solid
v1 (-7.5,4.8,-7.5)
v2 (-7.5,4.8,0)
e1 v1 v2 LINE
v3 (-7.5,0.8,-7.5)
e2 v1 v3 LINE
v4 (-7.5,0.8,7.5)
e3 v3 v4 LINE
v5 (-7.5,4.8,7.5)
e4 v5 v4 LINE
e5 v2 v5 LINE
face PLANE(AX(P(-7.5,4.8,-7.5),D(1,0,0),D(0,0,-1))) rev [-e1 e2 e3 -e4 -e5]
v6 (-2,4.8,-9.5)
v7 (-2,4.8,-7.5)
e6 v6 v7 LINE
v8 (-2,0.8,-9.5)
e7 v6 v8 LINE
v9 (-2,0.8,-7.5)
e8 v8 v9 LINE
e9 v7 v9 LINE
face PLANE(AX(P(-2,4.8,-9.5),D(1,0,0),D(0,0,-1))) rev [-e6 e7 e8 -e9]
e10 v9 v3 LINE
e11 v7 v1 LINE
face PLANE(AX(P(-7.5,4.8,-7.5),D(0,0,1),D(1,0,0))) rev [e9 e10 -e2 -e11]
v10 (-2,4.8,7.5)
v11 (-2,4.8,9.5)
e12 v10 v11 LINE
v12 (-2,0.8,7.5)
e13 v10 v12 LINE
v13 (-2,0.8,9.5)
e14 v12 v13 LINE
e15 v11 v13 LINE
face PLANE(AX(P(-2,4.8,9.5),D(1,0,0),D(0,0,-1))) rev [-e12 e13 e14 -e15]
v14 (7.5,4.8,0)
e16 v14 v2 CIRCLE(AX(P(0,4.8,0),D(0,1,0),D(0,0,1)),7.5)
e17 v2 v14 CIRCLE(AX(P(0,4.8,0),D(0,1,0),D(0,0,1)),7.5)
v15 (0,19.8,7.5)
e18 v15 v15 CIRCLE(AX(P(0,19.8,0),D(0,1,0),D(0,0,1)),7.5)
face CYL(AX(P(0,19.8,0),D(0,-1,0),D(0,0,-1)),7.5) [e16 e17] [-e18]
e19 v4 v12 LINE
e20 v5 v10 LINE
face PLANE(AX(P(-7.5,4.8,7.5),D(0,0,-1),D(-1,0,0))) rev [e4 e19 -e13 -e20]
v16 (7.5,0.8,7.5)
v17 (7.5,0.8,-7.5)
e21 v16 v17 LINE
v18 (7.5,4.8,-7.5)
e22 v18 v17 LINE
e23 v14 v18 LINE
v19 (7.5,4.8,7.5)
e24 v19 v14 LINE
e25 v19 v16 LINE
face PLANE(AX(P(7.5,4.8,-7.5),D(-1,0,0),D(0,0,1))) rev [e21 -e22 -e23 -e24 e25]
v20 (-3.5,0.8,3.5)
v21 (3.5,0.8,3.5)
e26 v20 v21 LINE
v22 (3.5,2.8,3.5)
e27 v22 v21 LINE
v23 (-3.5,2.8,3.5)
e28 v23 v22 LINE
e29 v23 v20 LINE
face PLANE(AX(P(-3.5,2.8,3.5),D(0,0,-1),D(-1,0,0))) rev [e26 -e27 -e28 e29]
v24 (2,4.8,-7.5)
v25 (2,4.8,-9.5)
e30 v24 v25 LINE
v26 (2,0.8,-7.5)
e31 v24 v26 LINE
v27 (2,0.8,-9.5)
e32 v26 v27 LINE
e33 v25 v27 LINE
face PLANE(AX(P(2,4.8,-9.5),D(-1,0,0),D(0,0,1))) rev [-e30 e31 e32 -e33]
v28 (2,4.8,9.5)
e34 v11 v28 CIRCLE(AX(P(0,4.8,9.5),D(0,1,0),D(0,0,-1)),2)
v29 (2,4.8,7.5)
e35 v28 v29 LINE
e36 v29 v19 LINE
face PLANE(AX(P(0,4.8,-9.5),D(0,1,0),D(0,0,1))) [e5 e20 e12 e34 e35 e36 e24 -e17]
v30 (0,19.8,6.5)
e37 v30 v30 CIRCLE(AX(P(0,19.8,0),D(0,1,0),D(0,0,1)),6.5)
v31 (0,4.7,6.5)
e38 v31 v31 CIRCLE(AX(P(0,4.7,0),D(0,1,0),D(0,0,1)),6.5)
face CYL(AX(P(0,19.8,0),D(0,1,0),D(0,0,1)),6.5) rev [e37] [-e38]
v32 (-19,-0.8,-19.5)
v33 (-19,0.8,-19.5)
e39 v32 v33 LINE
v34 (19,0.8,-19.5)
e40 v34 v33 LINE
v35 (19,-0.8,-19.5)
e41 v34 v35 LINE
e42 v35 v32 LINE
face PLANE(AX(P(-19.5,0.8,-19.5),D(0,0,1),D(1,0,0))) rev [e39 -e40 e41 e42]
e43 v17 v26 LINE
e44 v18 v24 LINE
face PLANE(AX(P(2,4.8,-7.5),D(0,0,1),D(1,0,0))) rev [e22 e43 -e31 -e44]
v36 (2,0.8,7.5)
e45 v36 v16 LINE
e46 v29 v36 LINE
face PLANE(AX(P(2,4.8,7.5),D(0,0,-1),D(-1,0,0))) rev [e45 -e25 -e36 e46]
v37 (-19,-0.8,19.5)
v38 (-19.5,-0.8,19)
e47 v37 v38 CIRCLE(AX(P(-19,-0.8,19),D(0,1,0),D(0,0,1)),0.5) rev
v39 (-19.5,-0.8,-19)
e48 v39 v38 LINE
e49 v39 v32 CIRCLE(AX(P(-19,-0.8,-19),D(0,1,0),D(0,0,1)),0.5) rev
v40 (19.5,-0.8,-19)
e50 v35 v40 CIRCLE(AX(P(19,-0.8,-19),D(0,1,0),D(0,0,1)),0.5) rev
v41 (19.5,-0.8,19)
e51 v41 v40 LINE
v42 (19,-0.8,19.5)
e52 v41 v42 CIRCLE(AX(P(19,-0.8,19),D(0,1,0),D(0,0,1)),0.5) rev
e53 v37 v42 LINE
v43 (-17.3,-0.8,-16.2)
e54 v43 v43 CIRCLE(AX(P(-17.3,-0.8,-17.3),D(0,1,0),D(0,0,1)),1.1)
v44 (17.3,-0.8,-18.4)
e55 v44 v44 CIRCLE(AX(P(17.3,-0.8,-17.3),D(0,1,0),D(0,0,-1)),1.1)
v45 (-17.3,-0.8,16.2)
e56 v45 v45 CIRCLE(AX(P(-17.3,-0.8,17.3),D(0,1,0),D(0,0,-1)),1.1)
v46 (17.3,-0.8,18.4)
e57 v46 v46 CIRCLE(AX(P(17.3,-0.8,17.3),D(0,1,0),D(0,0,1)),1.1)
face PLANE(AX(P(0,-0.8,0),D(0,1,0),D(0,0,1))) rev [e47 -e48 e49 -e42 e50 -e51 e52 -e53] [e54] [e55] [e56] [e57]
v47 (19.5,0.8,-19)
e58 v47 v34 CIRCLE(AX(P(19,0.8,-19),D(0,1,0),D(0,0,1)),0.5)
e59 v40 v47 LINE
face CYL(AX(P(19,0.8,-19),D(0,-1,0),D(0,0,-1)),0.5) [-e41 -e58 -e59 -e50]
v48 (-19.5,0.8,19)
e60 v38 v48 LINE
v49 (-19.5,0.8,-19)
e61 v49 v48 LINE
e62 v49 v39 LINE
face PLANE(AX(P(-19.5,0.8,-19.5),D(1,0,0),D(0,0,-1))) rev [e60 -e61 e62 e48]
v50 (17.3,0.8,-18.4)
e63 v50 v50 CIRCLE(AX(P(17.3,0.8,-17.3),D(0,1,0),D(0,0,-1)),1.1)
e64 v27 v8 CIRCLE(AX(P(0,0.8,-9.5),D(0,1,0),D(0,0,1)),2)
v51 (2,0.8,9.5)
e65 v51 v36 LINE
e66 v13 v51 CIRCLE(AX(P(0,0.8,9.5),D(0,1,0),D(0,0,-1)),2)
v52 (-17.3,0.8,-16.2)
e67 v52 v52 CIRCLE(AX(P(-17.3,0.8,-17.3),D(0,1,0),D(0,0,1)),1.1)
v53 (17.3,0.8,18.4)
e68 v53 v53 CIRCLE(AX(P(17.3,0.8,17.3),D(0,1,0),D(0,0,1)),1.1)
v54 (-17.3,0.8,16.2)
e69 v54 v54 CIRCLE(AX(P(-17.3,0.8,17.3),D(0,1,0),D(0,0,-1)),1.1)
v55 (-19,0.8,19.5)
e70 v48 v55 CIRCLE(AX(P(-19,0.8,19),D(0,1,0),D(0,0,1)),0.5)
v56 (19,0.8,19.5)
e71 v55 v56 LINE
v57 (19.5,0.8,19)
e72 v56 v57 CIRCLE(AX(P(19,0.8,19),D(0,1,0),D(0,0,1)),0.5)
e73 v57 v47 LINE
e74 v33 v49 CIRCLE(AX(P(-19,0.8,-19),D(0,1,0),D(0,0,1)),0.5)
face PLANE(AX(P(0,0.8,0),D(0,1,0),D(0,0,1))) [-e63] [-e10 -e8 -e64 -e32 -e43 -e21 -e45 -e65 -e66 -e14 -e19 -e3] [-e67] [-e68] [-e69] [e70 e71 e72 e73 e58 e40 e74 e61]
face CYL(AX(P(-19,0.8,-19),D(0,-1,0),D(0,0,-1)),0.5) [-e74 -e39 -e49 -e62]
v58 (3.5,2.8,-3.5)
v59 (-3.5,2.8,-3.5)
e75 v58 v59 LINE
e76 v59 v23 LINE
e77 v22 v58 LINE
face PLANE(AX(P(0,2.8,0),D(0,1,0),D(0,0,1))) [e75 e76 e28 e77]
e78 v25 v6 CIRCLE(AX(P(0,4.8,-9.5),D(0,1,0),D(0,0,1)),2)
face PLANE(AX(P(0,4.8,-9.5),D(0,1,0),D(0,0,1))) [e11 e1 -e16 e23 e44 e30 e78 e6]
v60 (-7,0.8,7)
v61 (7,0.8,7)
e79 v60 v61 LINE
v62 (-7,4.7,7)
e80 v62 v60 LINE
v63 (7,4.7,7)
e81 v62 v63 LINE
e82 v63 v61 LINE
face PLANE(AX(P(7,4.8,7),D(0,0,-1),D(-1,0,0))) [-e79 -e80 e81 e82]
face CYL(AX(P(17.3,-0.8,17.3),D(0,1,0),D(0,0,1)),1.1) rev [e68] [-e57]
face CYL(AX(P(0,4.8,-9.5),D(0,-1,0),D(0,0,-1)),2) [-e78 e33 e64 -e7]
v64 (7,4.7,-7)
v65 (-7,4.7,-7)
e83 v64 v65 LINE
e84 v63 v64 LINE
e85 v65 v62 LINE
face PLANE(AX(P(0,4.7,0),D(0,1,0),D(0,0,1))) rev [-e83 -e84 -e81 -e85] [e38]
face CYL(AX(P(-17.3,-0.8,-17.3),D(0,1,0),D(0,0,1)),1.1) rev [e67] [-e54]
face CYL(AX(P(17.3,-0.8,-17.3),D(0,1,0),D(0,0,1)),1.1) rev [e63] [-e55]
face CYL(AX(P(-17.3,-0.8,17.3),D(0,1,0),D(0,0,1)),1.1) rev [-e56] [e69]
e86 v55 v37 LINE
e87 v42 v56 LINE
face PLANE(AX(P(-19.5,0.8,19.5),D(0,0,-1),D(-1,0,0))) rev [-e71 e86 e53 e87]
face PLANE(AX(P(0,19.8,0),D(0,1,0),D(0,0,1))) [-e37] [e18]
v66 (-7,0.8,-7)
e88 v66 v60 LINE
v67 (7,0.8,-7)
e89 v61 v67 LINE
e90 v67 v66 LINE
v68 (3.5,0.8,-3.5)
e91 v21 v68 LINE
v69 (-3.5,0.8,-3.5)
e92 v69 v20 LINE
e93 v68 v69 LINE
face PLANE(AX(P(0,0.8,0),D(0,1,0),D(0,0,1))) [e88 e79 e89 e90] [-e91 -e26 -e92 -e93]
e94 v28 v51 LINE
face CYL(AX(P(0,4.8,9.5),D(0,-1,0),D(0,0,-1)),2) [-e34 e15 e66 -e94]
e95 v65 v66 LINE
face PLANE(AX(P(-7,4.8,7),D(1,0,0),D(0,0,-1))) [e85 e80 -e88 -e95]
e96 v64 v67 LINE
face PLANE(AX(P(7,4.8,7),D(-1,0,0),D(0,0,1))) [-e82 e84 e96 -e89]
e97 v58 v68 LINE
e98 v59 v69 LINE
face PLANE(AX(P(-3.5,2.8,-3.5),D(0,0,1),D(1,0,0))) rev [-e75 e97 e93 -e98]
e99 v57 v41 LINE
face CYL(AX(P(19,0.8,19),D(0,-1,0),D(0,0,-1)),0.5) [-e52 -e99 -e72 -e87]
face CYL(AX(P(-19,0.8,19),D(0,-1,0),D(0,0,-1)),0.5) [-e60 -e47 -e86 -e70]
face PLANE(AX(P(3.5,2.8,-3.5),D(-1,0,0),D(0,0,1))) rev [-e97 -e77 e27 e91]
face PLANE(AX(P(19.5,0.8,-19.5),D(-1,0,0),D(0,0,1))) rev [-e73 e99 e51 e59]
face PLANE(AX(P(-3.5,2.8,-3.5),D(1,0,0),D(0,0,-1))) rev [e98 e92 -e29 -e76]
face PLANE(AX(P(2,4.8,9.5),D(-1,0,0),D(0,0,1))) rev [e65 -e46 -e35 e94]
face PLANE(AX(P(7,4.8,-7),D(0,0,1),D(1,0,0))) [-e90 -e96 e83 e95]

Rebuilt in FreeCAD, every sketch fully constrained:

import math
import FreeCAD as App
import Part
import Sketcher
Q = App.Units.Quantity


def edges_at(feature, points):
    """Names of the edges that pass closest to the given points."""
    edges = feature.Shape.Edges
    near = lambda p: min(range(len(edges)), key=lambda i: edges[i].distToShape(Part.Vertex(*p))[0])
    return sorted({f"Edge{near(p) + 1}" for p in points})

doc = App.newDocument("Part")
body = doc.addObject("PartDesign::Body", "Body")

# Sketch on XZ plane
sketch1 = doc.addObject("Sketcher::SketchObject", "Sketch")
body.addObject(sketch1)
sketch1.AttachmentSupport = (doc.XZ_Plane, [""])
sketch1.MapMode = "FlatFace"
sketch1.addGeometry([
    Part.LineSegment(App.Vector(-20, -20, 0), App.Vector(-20, 20, 0)),
    Part.LineSegment(App.Vector(-20, 20, 0), App.Vector(20, 20, 0)),
    Part.LineSegment(App.Vector(20, 20, 0), App.Vector(20, -20, 0)),
    Part.LineSegment(App.Vector(20, -20, 0), App.Vector(-20, -20, 0)),
], False)
sketch1.addConstraint([
    Sketcher.Constraint("Coincident", 0, 2, 1, 1),
    Sketcher.Constraint("Coincident", 1, 2, 2, 1),
    Sketcher.Constraint("Coincident", 2, 2, 3, 1),
    Sketcher.Constraint("Coincident", 3, 2, 0, 1),
    Sketcher.Constraint("Vertical", 0),
    Sketcher.Constraint("Horizontal", 1),
    Sketcher.Constraint("Vertical", 2),
    Sketcher.Constraint("Horizontal", 3),
    Sketcher.Constraint("Symmetric", 0, 2, 2, 2, -1, 1),
    Sketcher.Constraint("Equal", 3, 0),
    Sketcher.Constraint("DistanceX", 1, 1, 1, 2, Q("39 mm")),
])
pad1 = doc.addObject("PartDesign::Pad", "Pad")
body.addObject(pad1)
pad1.Profile = sketch1
pad1.Length = 1.6
pad1.Midplane = True
doc.recompute()

fillet = doc.addObject("PartDesign::Fillet", "Fillet")
body.addObject(fillet)
fillet.Base = (pad1, edges_at(pad1, [
    (19.5, 0, 19.5),
    (-19.5, 0, 19.5),
    (-19.5, 0, -19.5),
    (19.5, 0, -19.5),
]))
fillet.Radius = 0.5

# Sketch on XZ plane
sketch2 = doc.addObject("Sketcher::SketchObject", "Sketch001")
body.addObject(sketch2)
sketch2.AttachmentSupport = (doc.XZ_Plane, [""])
sketch2.MapMode = "FlatFace"
sketch2.AttachmentOffset = App.Placement(App.Vector(0, 0, -0.8), App.Rotation())
sketch2.addGeometry([
    Part.Circle(App.Vector(-17.3, -17.3, 0), App.Vector(0, 0, 1), 1.1),
    Part.Circle(App.Vector(-17.3, 17.3, 0), App.Vector(0, 0, 1), 1.1),
    Part.Circle(App.Vector(17.3, 17.3, 0), App.Vector(0, 0, 1), 1.1),
    Part.Circle(App.Vector(17.3, -17.3, 0), App.Vector(0, 0, 1), 1.1),
], False)
sketch2.addConstraint([
    Sketcher.Constraint("Equal", 0, 1),
    Sketcher.Constraint("Equal", 1, 2),
    Sketcher.Constraint("Equal", 2, 3),
    Sketcher.Constraint("Symmetric", 0, 3, 2, 3, -1, 1),
    Sketcher.Constraint("Symmetric", 1, 3, 3, 3, -1, 1),
    Sketcher.Constraint("Symmetric", 1, 3, 2, 3, -2),
    Sketcher.Constraint("Diameter", 0, Q("2.2 mm")),
    Sketcher.Constraint("DistanceX", 0, 3, -1, 1, Q("17.3 mm")),
    Sketcher.Constraint("DistanceY", 0, 3, -1, 1, Q("17.3 mm")),
])
pocket1 = doc.addObject("PartDesign::Pocket", "Pocket")
body.addObject(pocket1)
pocket1.Profile = sketch2
pocket1.Length = 1.6
pocket1.Reversed = True

# Sketch on XZ plane
sketch3 = doc.addObject("Sketcher::SketchObject", "Sketch002")
body.addObject(sketch3)
sketch3.AttachmentSupport = (doc.XZ_Plane, [""])
sketch3.MapMode = "FlatFace"
sketch3.AttachmentOffset = App.Placement(App.Vector(0, 0, -0.8), App.Rotation())
sketch3.addGeometry([
    Part.LineSegment(App.Vector(-4, -4, 0), App.Vector(-4, 4, 0)),
    Part.LineSegment(App.Vector(-4, 4, 0), App.Vector(4, 4, 0)),
    Part.LineSegment(App.Vector(4, 4, 0), App.Vector(4, -4, 0)),
    Part.LineSegment(App.Vector(4, -4, 0), App.Vector(-4, -4, 0)),
], False)
sketch3.addConstraint([
    Sketcher.Constraint("Coincident", 0, 2, 1, 1),
    Sketcher.Constraint("Coincident", 1, 2, 2, 1),
    Sketcher.Constraint("Coincident", 2, 2, 3, 1),
    Sketcher.Constraint("Coincident", 3, 2, 0, 1),
    Sketcher.Constraint("Vertical", 0),
    Sketcher.Constraint("Horizontal", 1),
    Sketcher.Constraint("Vertical", 2),
    Sketcher.Constraint("Horizontal", 3),
    Sketcher.Constraint("Symmetric", 0, 2, 2, 2, -1, 1),
    Sketcher.Constraint("Equal", 3, 0),
    Sketcher.Constraint("DistanceX", 1, 1, 1, 2, Q("7 mm")),
])
pad2 = doc.addObject("PartDesign::Pad", "Pad001")
body.addObject(pad2)
pad2.Profile = sketch3
pad2.Length = 2
pad2.Reversed = True

# Sketch on XZ plane
sketch4 = doc.addObject("Sketcher::SketchObject", "Sketch003")
body.addObject(sketch4)
sketch4.AttachmentSupport = (doc.XZ_Plane, [""])
sketch4.MapMode = "FlatFace"
sketch4.AttachmentOffset = App.Placement(App.Vector(0, 0, -0.8), App.Rotation())
sketch4.addGeometry([
    Part.LineSegment(App.Vector(-2, -9.5, 0), App.Vector(-2, -7.5, 0)),  # 0
    Part.LineSegment(App.Vector(-2, -7.5, 0), App.Vector(-7.5, -7.5, 0)),  # 1
    Part.LineSegment(App.Vector(-7.5, -7.5, 0), App.Vector(-7.5, 7.5, 0)),  # 2
    Part.LineSegment(App.Vector(-7.5, 7.5, 0), App.Vector(-2, 7.5, 0)),  # 3
    Part.LineSegment(App.Vector(-2, 7.5, 0), App.Vector(-2, 9.5, 0)),  # 4
    Part.ArcOfCircle(Part.Circle(App.Vector(0, 9.5, 0), App.Vector(0, 0, 1), 2), math.radians(0), math.radians(180)),  # 5
    Part.LineSegment(App.Vector(2, 9.5, 0), App.Vector(2, 7.5, 0)),  # 6
    Part.LineSegment(App.Vector(2, 7.5, 0), App.Vector(7.5, 7.5, 0)),  # 7
    Part.LineSegment(App.Vector(7.5, 7.5, 0), App.Vector(7.5, -7.5, 0)),  # 8
    Part.LineSegment(App.Vector(7.5, -7.5, 0), App.Vector(2, -7.5, 0)),  # 9
    Part.LineSegment(App.Vector(2, -7.5, 0), App.Vector(2, -9.5, 0)),  # 10
    Part.ArcOfCircle(Part.Circle(App.Vector(0, -9.5, 0), App.Vector(0, 0, 1), 2), math.radians(180), math.radians(360)),  # 11
    Part.LineSegment(App.Vector(7, 7, 0), App.Vector(-7, 7, 0)),  # 12
    Part.LineSegment(App.Vector(-7, 7, 0), App.Vector(-7, -7, 0)),  # 13
    Part.LineSegment(App.Vector(-7, -7, 0), App.Vector(7, -7, 0)),  # 14
    Part.LineSegment(App.Vector(7, -7, 0), App.Vector(7, 7, 0)),  # 15
], False)
sketch4.addConstraint([
    Sketcher.Constraint("Coincident", 0, 2, 1, 1),
    Sketcher.Constraint("Coincident", 1, 2, 2, 1),
    Sketcher.Constraint("Coincident", 2, 2, 3, 1),
    Sketcher.Constraint("Coincident", 3, 2, 4, 1),
    Sketcher.Constraint("Tangent", 4, 2, 5, 2),
    Sketcher.Constraint("Tangent", 5, 1, 6, 1),
    Sketcher.Constraint("Coincident", 6, 2, 7, 1),
    Sketcher.Constraint("Coincident", 7, 2, 8, 1),
    Sketcher.Constraint("Coincident", 8, 2, 9, 1),
    Sketcher.Constraint("Coincident", 9, 2, 10, 1),
    Sketcher.Constraint("Tangent", 10, 2, 11, 2),
    Sketcher.Constraint("Tangent", 11, 1, 0, 1),
    Sketcher.Constraint("Coincident", 12, 2, 13, 1),
    Sketcher.Constraint("Coincident", 13, 2, 14, 1),
    Sketcher.Constraint("Coincident", 14, 2, 15, 1),
    Sketcher.Constraint("Coincident", 15, 2, 12, 1),
    Sketcher.Constraint("Vertical", 0),
    Sketcher.Constraint("Horizontal", 1),
    Sketcher.Constraint("Vertical", 2),
    Sketcher.Constraint("Horizontal", 3),
    Sketcher.Constraint("Vertical", 4),
    Sketcher.Constraint("Vertical", 6),
    Sketcher.Constraint("Horizontal", 7),
    Sketcher.Constraint("Vertical", 8),
    Sketcher.Constraint("Horizontal", 9),
    Sketcher.Constraint("Vertical", 10),
    Sketcher.Constraint("Horizontal", 12),
    Sketcher.Constraint("Vertical", 13),
    Sketcher.Constraint("Horizontal", 14),
    Sketcher.Constraint("Vertical", 15),
    Sketcher.Constraint("Equal", 5, 11),
    Sketcher.Constraint("Symmetric", 5, 3, 11, 3, -1, 1),
    Sketcher.Constraint("Symmetric", 1, 2, 7, 2, -1, 1),
    Sketcher.Constraint("Symmetric", 12, 2, 14, 2, -1, 1),
    Sketcher.Constraint("Symmetric", 3, 2, 6, 2, -2),
    Sketcher.Constraint("Horizontal", 1, 2, 8, 2),
    Sketcher.Constraint("Equal", 14, 13),
    Sketcher.Constraint("Radius", 5, Q("2 mm")),
    Sketcher.Constraint("DistanceX", 12, 2, 12, 1, Q("14 mm")),
    Sketcher.Constraint("DistanceY", 0, 1, 0, 2, Q("2 mm")),
    Sketcher.Constraint("DistanceY", 2, 1, 2, 2, Q("15 mm")),
    Sketcher.Constraint("DistanceX", 1, 2, 1, 1, Q("5.5 mm")),
])
pad3 = doc.addObject("PartDesign::Pad", "Pad002")
body.addObject(pad3)
pad3.Profile = sketch4
pad3.Length = 4
pad3.Reversed = True

# Sketch on XZ plane
sketch5 = doc.addObject("Sketcher::SketchObject", "Sketch004")
body.addObject(sketch5)
sketch5.AttachmentSupport = (doc.XZ_Plane, [""])
sketch5.MapMode = "FlatFace"
sketch5.AttachmentOffset = App.Placement(App.Vector(0, 0, -4.8), App.Rotation())
sketch5.addGeometry([
    Part.LineSegment(App.Vector(-8, -8, 0), App.Vector(-8, 8, 0)),
    Part.LineSegment(App.Vector(-8, 8, 0), App.Vector(8, 8, 0)),
    Part.LineSegment(App.Vector(8, 8, 0), App.Vector(8, -8, 0)),
    Part.LineSegment(App.Vector(8, -8, 0), App.Vector(-8, -8, 0)),
], False)
sketch5.addConstraint([
    Sketcher.Constraint("Coincident", 0, 2, 1, 1),
    Sketcher.Constraint("Coincident", 1, 2, 2, 1),
    Sketcher.Constraint("Coincident", 2, 2, 3, 1),
    Sketcher.Constraint("Coincident", 3, 2, 0, 1),
    Sketcher.Constraint("Vertical", 0),
    Sketcher.Constraint("Horizontal", 1),
    Sketcher.Constraint("Vertical", 2),
    Sketcher.Constraint("Horizontal", 3),
    Sketcher.Constraint("Symmetric", 0, 2, 2, 2, -1, 1),
    Sketcher.Constraint("Equal", 3, 0),
    Sketcher.Constraint("DistanceX", 1, 1, 1, 2, Q("15 mm")),
])
pad4 = doc.addObject("PartDesign::Pad", "Pad003")
body.addObject(pad4)
pad4.Profile = sketch5
pad4.Length = 0.1

# Sketch on XZ plane
sketch6 = doc.addObject("Sketcher::SketchObject", "Sketch005")
body.addObject(sketch6)
sketch6.AttachmentSupport = (doc.XZ_Plane, [""])
sketch6.MapMode = "FlatFace"
sketch6.AttachmentOffset = App.Placement(App.Vector(0, 0, -4.8), App.Rotation())
sketch6.addGeometry(Part.Circle(App.Vector(0, 0, 0), App.Vector(0, 0, 1), 8), False)
sketch6.addConstraint([
    Sketcher.Constraint("Coincident", 0, 3, -1, 1),
    Sketcher.Constraint("Diameter", 0, Q("15 mm")),
])
pad5 = doc.addObject("PartDesign::Pad", "Pad004")
body.addObject(pad5)
pad5.Profile = sketch6
pad5.Length = 15
pad5.Reversed = True

# Sketch on XZ plane
sketch7 = doc.addObject("Sketcher::SketchObject", "Sketch006")
body.addObject(sketch7)
sketch7.AttachmentSupport = (doc.XZ_Plane, [""])
sketch7.MapMode = "FlatFace"
sketch7.AttachmentOffset = App.Placement(App.Vector(0, 0, -19.8), App.Rotation())
sketch7.addGeometry(Part.Circle(App.Vector(0, 0, 0), App.Vector(0, 0, 1), 6), False)
sketch7.addConstraint([
    Sketcher.Constraint("Coincident", 0, 3, -1, 1),
    Sketcher.Constraint("Diameter", 0, Q("13 mm")),
])
doc.recompute()
hole = doc.addObject("PartDesign::Hole", "Hole")
body.addObject(hole)
hole.Profile = sketch7
hole.ThreadType = "None"
hole.Diameter = 13
hole.DepthType = "Dimension"
hole.Depth = 15.1
hole.DrillPoint = "Flat"
hole.Reversed = True

doc.recompute()
